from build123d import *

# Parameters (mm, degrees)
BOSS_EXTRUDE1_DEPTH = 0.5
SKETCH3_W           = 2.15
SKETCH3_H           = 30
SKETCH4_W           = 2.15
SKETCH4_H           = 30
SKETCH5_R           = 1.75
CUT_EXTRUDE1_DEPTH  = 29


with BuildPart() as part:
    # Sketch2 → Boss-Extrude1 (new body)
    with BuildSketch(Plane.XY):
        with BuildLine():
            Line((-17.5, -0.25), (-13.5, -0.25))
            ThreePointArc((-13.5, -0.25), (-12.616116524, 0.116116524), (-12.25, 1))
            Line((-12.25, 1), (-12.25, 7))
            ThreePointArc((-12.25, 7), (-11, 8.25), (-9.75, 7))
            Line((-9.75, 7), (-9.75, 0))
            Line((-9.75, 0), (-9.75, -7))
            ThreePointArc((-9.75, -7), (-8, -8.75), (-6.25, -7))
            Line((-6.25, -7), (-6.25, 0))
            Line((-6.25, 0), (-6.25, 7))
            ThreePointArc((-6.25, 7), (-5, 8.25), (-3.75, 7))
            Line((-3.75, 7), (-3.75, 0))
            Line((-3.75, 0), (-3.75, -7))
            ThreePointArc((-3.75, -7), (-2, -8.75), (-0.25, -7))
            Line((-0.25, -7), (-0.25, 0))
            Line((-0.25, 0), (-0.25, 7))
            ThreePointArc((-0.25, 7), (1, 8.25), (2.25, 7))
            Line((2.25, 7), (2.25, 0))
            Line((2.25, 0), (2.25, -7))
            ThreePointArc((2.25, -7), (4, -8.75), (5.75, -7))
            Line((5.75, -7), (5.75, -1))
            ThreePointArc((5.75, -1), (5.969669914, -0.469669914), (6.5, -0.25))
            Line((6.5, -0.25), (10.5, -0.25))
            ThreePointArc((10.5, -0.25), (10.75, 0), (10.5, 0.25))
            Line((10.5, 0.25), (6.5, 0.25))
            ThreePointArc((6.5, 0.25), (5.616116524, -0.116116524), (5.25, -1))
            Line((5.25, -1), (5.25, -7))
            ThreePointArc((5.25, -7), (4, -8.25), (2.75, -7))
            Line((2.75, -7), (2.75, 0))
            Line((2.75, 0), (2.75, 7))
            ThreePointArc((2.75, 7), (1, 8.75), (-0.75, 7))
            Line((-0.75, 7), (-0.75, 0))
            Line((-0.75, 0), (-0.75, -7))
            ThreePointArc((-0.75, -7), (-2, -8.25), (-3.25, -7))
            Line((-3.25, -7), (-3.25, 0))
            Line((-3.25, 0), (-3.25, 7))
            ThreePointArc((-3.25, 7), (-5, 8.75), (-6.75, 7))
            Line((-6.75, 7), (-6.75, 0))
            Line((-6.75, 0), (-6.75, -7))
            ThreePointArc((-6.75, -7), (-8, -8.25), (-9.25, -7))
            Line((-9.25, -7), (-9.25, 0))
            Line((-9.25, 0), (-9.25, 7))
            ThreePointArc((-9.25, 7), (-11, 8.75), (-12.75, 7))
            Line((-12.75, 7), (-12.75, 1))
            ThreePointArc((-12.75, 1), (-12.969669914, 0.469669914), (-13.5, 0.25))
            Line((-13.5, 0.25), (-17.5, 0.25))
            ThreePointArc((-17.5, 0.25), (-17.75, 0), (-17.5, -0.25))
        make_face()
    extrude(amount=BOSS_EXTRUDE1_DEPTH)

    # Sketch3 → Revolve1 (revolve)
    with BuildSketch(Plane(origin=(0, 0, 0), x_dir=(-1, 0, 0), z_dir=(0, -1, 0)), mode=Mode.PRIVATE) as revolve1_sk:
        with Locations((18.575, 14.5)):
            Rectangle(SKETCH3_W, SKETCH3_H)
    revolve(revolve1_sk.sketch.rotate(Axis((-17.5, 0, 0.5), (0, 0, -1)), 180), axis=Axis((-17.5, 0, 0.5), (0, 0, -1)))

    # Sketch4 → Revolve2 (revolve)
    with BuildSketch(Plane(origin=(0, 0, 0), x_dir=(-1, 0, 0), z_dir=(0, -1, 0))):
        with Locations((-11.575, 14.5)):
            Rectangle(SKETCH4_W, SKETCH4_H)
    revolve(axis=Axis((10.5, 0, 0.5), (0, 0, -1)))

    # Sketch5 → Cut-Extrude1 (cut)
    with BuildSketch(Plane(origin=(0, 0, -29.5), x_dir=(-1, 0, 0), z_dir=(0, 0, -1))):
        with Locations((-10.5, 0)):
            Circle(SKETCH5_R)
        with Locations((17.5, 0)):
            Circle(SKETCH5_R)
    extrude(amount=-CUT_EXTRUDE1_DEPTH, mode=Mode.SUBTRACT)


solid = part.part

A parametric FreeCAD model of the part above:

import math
import FreeCAD as App
import Part
import Sketcher
Q = App.Units.Quantity


def add_polygon(sketch, points):
    """Adds a closed chain of lines whose ends are joined by coincident constraints."""
    first, n = sketch.GeometryCount, len(points)
    for a, b in zip(points, points[1:] + points[:1]):
        sketch.addGeometry(Part.LineSegment(App.Vector(*a, 0), App.Vector(*b, 0)), False)
    for i in range(n):
        sketch.addConstraint(Sketcher.Constraint("Coincident", first + i, 2, first + (i + 1) % n, 1))

doc = App.newDocument("Part")
params = doc.addObject("Spreadsheet::Sheet", "Params")
for row, (alias, value) in enumerate([
    ("sketch1_width", "4 mm"),
    ("sketch1_height", "6 mm"),
    ("sketch1_height2", "14 mm"),
    ("sketch1_radius", "1.25 mm"),
    ("pad1_length", "0.5 mm"),
    ("sketch2_height", "30 mm"),
    ("sketch2_width", "2.15 mm"),
    ("revolution_angle", "360 deg"),
    ("sketch3_height", "30 mm"),
    ("sketch3_width", "2.15 mm"),
    ("revolution2_angle", "360 deg"),
    ("sketch4_diameter", "3.5 mm"),
    ("pocket1_length", "29 mm"),
], start=1):
    params.set(f"A{row}", alias)
    params.set(f"B{row}", "=" + value)
    params.setAlias(f"B{row}", alias)

body = doc.addObject("PartDesign::Body", "Body")

sketch1 = body.newObject("Sketcher::SketchObject", "Sketch")
sketch1.AttachmentSupport = (doc.getObject("XY_Plane"), [""])
sketch1.MapMode = "FlatFace"
sketch1.addGeometry([
    Part.LineSegment(App.Vector(-17.5, -0.25, 0), App.Vector(-13.5, -0.25, 0)),
    Part.ArcOfCircle(Part.Circle(App.Vector(-13.5, 1, 0), App.Vector(0, 0, 1), 1.25), math.radians(-90), math.radians(0)),
    Part.LineSegment(App.Vector(-12.25, 1, 0), App.Vector(-12.25, 7, 0)),
    Part.ArcOfCircle(Part.Circle(App.Vector(-11, 7, 0), App.Vector(0, 0, 1), 1.25), math.radians(0), math.radians(180)),
    Part.LineSegment(App.Vector(-9.75, 7, 0), App.Vector(-9.75, -7, 0)),
    Part.ArcOfCircle(Part.Circle(App.Vector(-8, -7, 0), App.Vector(0, 0, 1), 1.75), math.radians(180), math.radians(360)),
    Part.LineSegment(App.Vector(-6.25, -7, 0), App.Vector(-6.25, 7, 0)),
    Part.ArcOfCircle(Part.Circle(App.Vector(-5, 7, 0), App.Vector(0, 0, 1), 1.25), math.radians(0), math.radians(180)),
    Part.LineSegment(App.Vector(-3.75, 7, 0), App.Vector(-3.75, -7, 0)),
    Part.ArcOfCircle(Part.Circle(App.Vector(-2, -7, 0), App.Vector(0, 0, 1), 1.75), math.radians(180), math.radians(360)),
    Part.LineSegment(App.Vector(-0.25, -7, 0), App.Vector(-0.25, 7, 0)),
    Part.ArcOfCircle(Part.Circle(App.Vector(1, 7, 0), App.Vector(0, 0, 1), 1.25), math.radians(0), math.radians(180)),
    Part.LineSegment(App.Vector(2.25, 7, 0), App.Vector(2.25, -7, 0)),
    Part.ArcOfCircle(Part.Circle(App.Vector(4, -7, 0), App.Vector(0, 0, 1), 1.75), math.radians(180), math.radians(360)),
    Part.LineSegment(App.Vector(5.75, -7, 0), App.Vector(5.75, -1, 0)),
    Part.ArcOfCircle(Part.Circle(App.Vector(6.5, -1, 0), App.Vector(0, 0, 1), 0.75), math.radians(90), math.radians(180)),
    Part.LineSegment(App.Vector(6.5, -0.25, 0), App.Vector(10.5, -0.25, 0)),
    Part.ArcOfCircle(Part.Circle(App.Vector(10.5, 0, 0), App.Vector(0, 0, 1), 0.25), math.radians(-90), math.radians(90)),
    Part.LineSegment(App.Vector(10.5, 0.25, 0), App.Vector(6.5, 0.25, 0)),
    Part.ArcOfCircle(Part.Circle(App.Vector(6.5, -1, 0), App.Vector(0, 0, 1), 1.25), math.radians(90), math.radians(180)),
    Part.LineSegment(App.Vector(5.25, -1, 0), App.Vector(5.25, -7, 0)),
    Part.ArcOfCircle(Part.Circle(App.Vector(4, -7, 0), App.Vector(0, 0, 1), 1.25), math.radians(180), math.radians(360)),
    Part.LineSegment(App.Vector(2.75, -7, 0), App.Vector(2.75, 7, 0)),
    Part.ArcOfCircle(Part.Circle(App.Vector(1, 7, 0), App.Vector(0, 0, 1), 1.75), math.radians(0), math.radians(180)),
    Part.LineSegment(App.Vector(-0.75, 7, 0), App.Vector(-0.75, -7, 0)),
    Part.ArcOfCircle(Part.Circle(App.Vector(-2, -7, 0), App.Vector(0, 0, 1), 1.25), math.radians(180), math.radians(360)),
    Part.LineSegment(App.Vector(-3.25, -7, 0), App.Vector(-3.25, 7, 0)),
    Part.ArcOfCircle(Part.Circle(App.Vector(-5, 7, 0), App.Vector(0, 0, 1), 1.75), math.radians(0), math.radians(180)),
    Part.LineSegment(App.Vector(-6.75, 7, 0), App.Vector(-6.75, -7, 0)),
    Part.ArcOfCircle(Part.Circle(App.Vector(-8, -7, 0), App.Vector(0, 0, 1), 1.25), math.radians(180), math.radians(360)),
    Part.LineSegment(App.Vector(-9.25, -7, 0), App.Vector(-9.25, 7, 0)),
    Part.ArcOfCircle(Part.Circle(App.Vector(-11, 7, 0), App.Vector(0, 0, 1), 1.75), math.radians(0), math.radians(180)),
    Part.LineSegment(App.Vector(-12.75, 7, 0), App.Vector(-12.75, 1, 0)),
    Part.ArcOfCircle(Part.Circle(App.Vector(-13.5, 1, 0), App.Vector(0, 0, 1), 0.75), math.radians(-90), math.radians(0)),
    Part.LineSegment(App.Vector(-13.5, 0.25, 0), App.Vector(-17.5, 0.25, 0)),
    Part.ArcOfCircle(Part.Circle(App.Vector(-17.5, 0, 0), App.Vector(0, 0, 1), 0.25), math.radians(90), math.radians(270)),
], False)
sketch1.addConstraint([
    Sketcher.Constraint("Tangent", 0, 2, 1, 1),
    Sketcher.Constraint("Tangent", 1, 2, 2, 1),
    Sketcher.Constraint("Tangent", 2, 2, 3, 2),
    Sketcher.Constraint("Tangent", 3, 1, 4, 1),
    Sketcher.Constraint("Tangent", 4, 2, 5, 1),
    Sketcher.Constraint("Tangent", 5, 2, 6, 1),
    Sketcher.Constraint("Tangent", 6, 2, 7, 2),
    Sketcher.Constraint("Tangent", 7, 1, 8, 1),
    Sketcher.Constraint("Tangent", 8, 2, 9, 1),
    Sketcher.Constraint("Tangent", 9, 2, 10, 1),
    Sketcher.Constraint("Tangent", 10, 2, 11, 2),
    Sketcher.Constraint("Tangent", 11, 1, 12, 1),
    Sketcher.Constraint("Tangent", 12, 2, 13, 1),
    Sketcher.Constraint("Tangent", 13, 2, 14, 1),
    Sketcher.Constraint("Tangent", 14, 2, 15, 2),
    Sketcher.Constraint("Tangent", 15, 1, 16, 1),
    Sketcher.Constraint("Tangent", 16, 2, 17, 1),
    Sketcher.Constraint("Tangent", 17, 2, 18, 1),
    Sketcher.Constraint("Tangent", 18, 2, 19, 1),
    Sketcher.Constraint("Tangent", 19, 2, 20, 1),
    Sketcher.Constraint("Tangent", 20, 2, 21, 2),
    Sketcher.Constraint("Tangent", 21, 1, 22, 1),
    Sketcher.Constraint("Tangent", 22, 2, 23, 1),
    Sketcher.Constraint("Tangent", 23, 2, 24, 1),
    Sketcher.Constraint("Tangent", 24, 2, 25, 2),
    Sketcher.Constraint("Tangent", 25, 1, 26, 1),
    Sketcher.Constraint("Tangent", 26, 2, 27, 1),
    Sketcher.Constraint("Tangent", 27, 2, 28, 1),
    Sketcher.Constraint("Tangent", 28, 2, 29, 2),
    Sketcher.Constraint("Tangent", 29, 1, 30, 1),
    Sketcher.Constraint("Tangent", 30, 2, 31, 1),
    Sketcher.Constraint("Tangent", 31, 2, 32, 1),
    Sketcher.Constraint("Tangent", 32, 2, 33, 2),
    Sketcher.Constraint("Tangent", 33, 1, 34, 1),
    Sketcher.Constraint("Tangent", 34, 2, 35, 1),
    Sketcher.Constraint("Tangent", 35, 2, 0, 1),
    Sketcher.Constraint("Horizontal", 0),
    Sketcher.Constraint("Vertical", 2),
    Sketcher.Constraint("Vertical", 4),
    Sketcher.Constraint("Vertical", 6),
    Sketcher.Constraint("Vertical", 8),
    Sketcher.Constraint("Vertical", 10),
    Sketcher.Constraint("Vertical", 12),
    Sketcher.Constraint("Vertical", 14),
    Sketcher.Constraint("Horizontal", 16),
    Sketcher.Constraint("Horizontal", 18),
    Sketcher.Constraint("Vertical", 20),
    Sketcher.Constraint("Vertical", 22),
    Sketcher.Constraint("Vertical", 24),
    Sketcher.Constraint("Vertical", 26),
    Sketcher.Constraint("Vertical", 28),
    Sketcher.Constraint("Vertical", 30),
    Sketcher.Constraint("Vertical", 32),
    Sketcher.Constraint("Horizontal", 34),
    Sketcher.Constraint("Coincident", 19, 3, 15, 3),
    Sketcher.Constraint("Coincident", 21, 3, 13, 3),
    Sketcher.Constraint("Coincident", 23, 3, 11, 3),
    Sketcher.Constraint("Coincident", 25, 3, 9, 3),
    Sketcher.Constraint("Coincident", 27, 3, 7, 3),
    Sketcher.Constraint("Coincident", 29, 3, 5, 3),
    Sketcher.Constraint("Coincident", 31, 3, 3, 3),
    Sketcher.Constraint("Coincident", 33, 3, 1, 3),
    Sketcher.Constraint("Equal", 1, 3),
    Sketcher.Constraint("Equal", 3, 7),
    Sketcher.Constraint("Equal", 5, 9),
    Sketcher.Constraint("Equal", 7, 11),
    Sketcher.Constraint("Equal", 9, 13),
    Sketcher.Constraint("Equal", 11, 19),
    Sketcher.Constraint("Equal", 19, 21),
    Sketcher.Constraint("PointOnObject", 17, 3, -1),
    Sketcher.Constraint("PointOnObject", 35, 3, -1),
    Sketcher.Constraint("Horizontal", 3, 3, 7, 3),
    Sketcher.Constraint("Horizontal", 5, 3, 9, 3),
    Sketcher.Constraint("Horizontal", 7, 3, 11, 3),
    Sketcher.Constraint("Horizontal", 9, 3, 13, 3),
    Sketcher.Constraint("Equal", 0, 16),
    Sketcher.Constraint("Equal", 2, 14),
    Sketcher.Constraint("DistanceX", 0, 1, 0, 2, Q("4 mm")),
    Sketcher.Constraint("DistanceY", 2, 1, 2, 2, Q("6 mm")),
    Sketcher.Constraint("DistanceY", 4, 2, 4, 1, Q("14 mm")),
    Sketcher.Constraint("Radius", 1, Q("1.25 mm")),
    Sketcher.Constraint("DistanceX", 3, 3, -1, 1, Q("11 mm")),
])
sketch1.setExpression("Constraints[77]", "Params.sketch1_width")
sketch1.setExpression("Constraints[78]", "Params.sketch1_height")
sketch1.setExpression("Constraints[79]", "Params.sketch1_height2")
sketch1.setExpression("Constraints[80]", "Params.sketch1_radius")
pad1 = body.newObject("PartDesign::Pad", "Pad")
pad1.Profile = sketch1
pad1.setExpression("Length", "Params.pad1_length")

sketch2 = body.newObject("Sketcher::SketchObject", "Sketch001")
sketch2.AttachmentSupport = (doc.getObject("XZ_Plane"), [""])
sketch2.MapMode = "FlatFace"
add_polygon(sketch2, [(-17.5, -29.5), (-17.5, 0.5), (-19.6, 0.5), (-19.6, -29.5)])
sketch2.addGeometry(Part.LineSegment(App.Vector(-17.5, 0.5, 0), App.Vector(-17.5, -29.5, 0)), True)
sketch2.addConstraint([
    Sketcher.Constraint("Vertical", 0),
    Sketcher.Constraint("Horizontal", 1),
    Sketcher.Constraint("Vertical", 2),
    Sketcher.Constraint("Horizontal", 3),
    Sketcher.Constraint("Vertical", 4),
    Sketcher.Constraint("Coincident", 4, 1, 0, 2),
    Sketcher.Constraint("Horizontal", 2, 2, 4, 2),
    Sketcher.Constraint("DistanceY", 0, 1, 0, 2, Q("30 mm")),
    Sketcher.Constraint("DistanceX", 1, 2, 1, 1, Q("2.15 mm")),
    Sketcher.Constraint("DistanceX", 0, 2, -1, 1, Q("17.5 mm")),
    Sketcher.Constraint("DistanceY", -1, 1, 0, 2, Q("0.5 mm")),
])
sketch2.setExpression("Constraints[11]", "Params.sketch2_height")
sketch2.setExpression("Constraints[12]", "Params.sketch2_width")
revolution = body.newObject("PartDesign::Revolution", "Revolution")
revolution.Profile = sketch2
revolution.ReferenceAxis = (sketch2, ["Axis0"])
revolution.setExpression("Angle", "Params.revolution_angle")

sketch3 = body.newObject("Sketcher::SketchObject", "Sketch002")
sketch3.AttachmentSupport = (doc.getObject("XZ_Plane"), [""])
sketch3.MapMode = "FlatFace"
add_polygon(sketch3, [(12.7, -29.5), (12.7, 0.5), (10.5, 0.5), (10.5, -29.5)])
sketch3.addGeometry(Part.LineSegment(App.Vector(10.5, 0.5, 0), App.Vector(10.5, -29.5, 0)), True)
sketch3.addConstraint([
    Sketcher.Constraint("Vertical", 0),
    Sketcher.Constraint("Horizontal", 1),
    Sketcher.Constraint("Vertical", 2),
    Sketcher.Constraint("Horizontal", 3),
    Sketcher.Constraint("Vertical", 4),
    Sketcher.Constraint("Coincident", 4, 1, 1, 2),
    Sketcher.Constraint("Horizontal", 3, 2, 4, 2),
    Sketcher.Constraint("DistanceY", 0, 1, 0, 2, Q("30 mm")),
    Sketcher.Constraint("DistanceX", 1, 2, 1, 1, Q("2.15 mm")),
    Sketcher.Constraint("DistanceY", -1, 1, 0, 2, Q("0.5 mm")),
    Sketcher.Constraint("DistanceX", -1, 1, 1, 2, Q("10.5 mm")),
])
sketch3.setExpression("Constraints[11]", "Params.sketch3_height")
sketch3.setExpression("Constraints[12]", "Params.sketch3_width")
revolution2 = body.newObject("PartDesign::Revolution", "Revolution001")
revolution2.Profile = sketch3
revolution2.ReferenceAxis = (sketch3, ["Axis0"])
revolution2.setExpression("Angle", "Params.revolution2_angle")

sketch4 = body.newObject("Sketcher::SketchObject", "Sketch003")
sketch4.AttachmentSupport = (doc.getObject("XY_Plane"), [""])
sketch4.MapMode = "FlatFace"
sketch4.AttachmentOffset = App.Placement(App.Vector(0, 0, -29.5), App.Rotation())
sketch4.addGeometry([
    Part.Circle(App.Vector(10.5, 0, 0), App.Vector(0, 0, 1), 1.8),
    Part.Circle(App.Vector(-17.5, 0, 0), App.Vector(0, 0, 1), 1.8),
], False)
sketch4.addConstraint([
    Sketcher.Constraint("Equal", 0, 1),
    Sketcher.Constraint("PointOnObject", 0, 3, -1),
    Sketcher.Constraint("PointOnObject", 1, 3, -1),
    Sketcher.Constraint("Diameter", 0, Q("3.5 mm")),
    Sketcher.Constraint("DistanceX", 1, 3, 0, 3, Q("28 mm")),
    Sketcher.Constraint("DistanceX", -1, 1, 0, 3, Q("10.5 mm")),
])
sketch4.setExpression("Constraints[3]", "Params.sketch4_diameter")
pocket1 = body.newObject("PartDesign::Pocket", "Pocket")
pocket1.Profile = sketch4
pocket1.setExpression("Length", "Params.pocket1_length")
pocket1.Reversed = True

doc.recompute()
